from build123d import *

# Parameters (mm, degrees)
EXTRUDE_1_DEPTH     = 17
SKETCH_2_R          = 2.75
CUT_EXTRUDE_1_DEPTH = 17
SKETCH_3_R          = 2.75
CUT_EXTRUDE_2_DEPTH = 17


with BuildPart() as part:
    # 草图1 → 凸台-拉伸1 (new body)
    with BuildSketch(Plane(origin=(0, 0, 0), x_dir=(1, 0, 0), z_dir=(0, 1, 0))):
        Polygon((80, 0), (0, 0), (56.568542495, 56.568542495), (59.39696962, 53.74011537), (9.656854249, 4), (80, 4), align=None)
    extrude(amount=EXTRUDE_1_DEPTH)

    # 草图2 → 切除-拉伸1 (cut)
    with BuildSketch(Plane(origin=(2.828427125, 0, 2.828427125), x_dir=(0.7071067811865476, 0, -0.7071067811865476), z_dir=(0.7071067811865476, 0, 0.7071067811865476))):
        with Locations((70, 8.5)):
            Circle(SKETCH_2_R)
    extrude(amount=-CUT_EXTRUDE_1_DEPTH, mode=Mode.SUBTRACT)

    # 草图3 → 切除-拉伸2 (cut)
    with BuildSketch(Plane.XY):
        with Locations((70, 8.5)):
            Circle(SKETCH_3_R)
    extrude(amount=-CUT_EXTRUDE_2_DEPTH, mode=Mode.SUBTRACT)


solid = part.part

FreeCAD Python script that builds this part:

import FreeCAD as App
import Part
import Sketcher
from FreeCAD import Vector
Q = App.Units.Quantity


def add_polygon(sketch, points):
    """Adds a closed chain of lines whose ends are joined by coincident constraints."""
    first, n = sketch.GeometryCount, len(points)
    for a, b in zip(points, points[1:] + points[:1]):
        sketch.addGeometry(Part.LineSegment(App.Vector(*a, 0), App.Vector(*b, 0)), False)
    for i in range(n):
        sketch.addConstraint(Sketcher.Constraint("Coincident", first + i, 2, first + (i + 1) % n, 1))

doc = App.newDocument("Part")
body = doc.addObject("PartDesign::Body", "Body")

# Sketch on XZ plane
sketch1 = body.newObject("Sketcher::SketchObject", "Sketch")
sketch1.AttachmentSupport = (doc.getObject("XZ_Plane"), [""])
sketch1.MapMode = "FlatFace"
add_polygon(sketch1, [(0, 0), (80, 0), (80, -4), (9.7, -4), (59.4, -53.7), (56.6, -56.6)])  # lines 0-5
sketch1.addConstraint([
    Sketcher.Constraint("Horizontal", 0),
    Sketcher.Constraint("Vertical", 1),
    Sketcher.Constraint("Horizontal", 2),
    Sketcher.Constraint("Coincident", 5, 2, -1, 1),
    Sketcher.Constraint("Perpendicular", 3, 4),
    Sketcher.Constraint("Perpendicular", 4, 5),
    Sketcher.Constraint("DistanceX", 0, 1, 0, 2, Q("80 mm")),
    Sketcher.Constraint("DistanceY", 1, 2, 1, 1, Q("4 mm")),
    Sketcher.Constraint("Angle", 3, Q("-45 deg")),
    Sketcher.Constraint("Distance", 4, Q("4 mm")),
    Sketcher.Constraint("Distance", 5, Q("80 mm")),
])
pad1 = body.newObject("PartDesign::Pad", "Pad")
pad1.Profile = sketch1
pad1.Length = 17
pad1.Reversed = True

# Sketch on an angled plane
sketch2 = body.newObject("Sketcher::SketchObject", "Sketch001")
sketch2.Placement = App.Placement(Vector(2.828427, 0, 2.828427), App.Rotation(Vector(0.707106781, 0, -0.707106781), Vector(0, 0.999999999, 0), Vector(0.707106781, 0, 0.707106781), "ZXY"))
sketch2.addGeometry(Part.Circle(Vector(70, 8.5, 0), Vector(0, 0, 1), 2.8), False)
sketch2.addConstraint([
    Sketcher.Constraint("Diameter", 0, Q("5.5 mm")),
    Sketcher.Constraint("DistanceX", -1, 1, 0, 3, Q("70 mm")),
    Sketcher.Constraint("DistanceY", -1, 1, 0, 3, Q("8.5 mm")),
])
pocket1 = body.newObject("PartDesign::Pocket", "Pocket")
pocket1.Profile = sketch2
pocket1.Length = 17

# Sketch on XY plane
sketch3 = body.newObject("Sketcher::SketchObject", "Sketch002")
sketch3.AttachmentSupport = (doc.getObject("XY_Plane"), [""])
sketch3.MapMode = "FlatFace"
sketch3.addGeometry(Part.Circle(Vector(70, 8.5, 0), Vector(0, 0, 1), 2.8), False)
sketch3.addConstraint([
    Sketcher.Constraint("Diameter", 0, Q("5.5 mm")),
    Sketcher.Constraint("DistanceX", -1, 1, 0, 3, Q("70 mm")),
    Sketcher.Constraint("DistanceY", -1, 1, 0, 3, Q("8.5 mm")),
])
pocket2 = body.newObject("PartDesign::Pocket", "Pocket001")
pocket2.Profile = sketch3
pocket2.Length = 17

doc.recompute()
